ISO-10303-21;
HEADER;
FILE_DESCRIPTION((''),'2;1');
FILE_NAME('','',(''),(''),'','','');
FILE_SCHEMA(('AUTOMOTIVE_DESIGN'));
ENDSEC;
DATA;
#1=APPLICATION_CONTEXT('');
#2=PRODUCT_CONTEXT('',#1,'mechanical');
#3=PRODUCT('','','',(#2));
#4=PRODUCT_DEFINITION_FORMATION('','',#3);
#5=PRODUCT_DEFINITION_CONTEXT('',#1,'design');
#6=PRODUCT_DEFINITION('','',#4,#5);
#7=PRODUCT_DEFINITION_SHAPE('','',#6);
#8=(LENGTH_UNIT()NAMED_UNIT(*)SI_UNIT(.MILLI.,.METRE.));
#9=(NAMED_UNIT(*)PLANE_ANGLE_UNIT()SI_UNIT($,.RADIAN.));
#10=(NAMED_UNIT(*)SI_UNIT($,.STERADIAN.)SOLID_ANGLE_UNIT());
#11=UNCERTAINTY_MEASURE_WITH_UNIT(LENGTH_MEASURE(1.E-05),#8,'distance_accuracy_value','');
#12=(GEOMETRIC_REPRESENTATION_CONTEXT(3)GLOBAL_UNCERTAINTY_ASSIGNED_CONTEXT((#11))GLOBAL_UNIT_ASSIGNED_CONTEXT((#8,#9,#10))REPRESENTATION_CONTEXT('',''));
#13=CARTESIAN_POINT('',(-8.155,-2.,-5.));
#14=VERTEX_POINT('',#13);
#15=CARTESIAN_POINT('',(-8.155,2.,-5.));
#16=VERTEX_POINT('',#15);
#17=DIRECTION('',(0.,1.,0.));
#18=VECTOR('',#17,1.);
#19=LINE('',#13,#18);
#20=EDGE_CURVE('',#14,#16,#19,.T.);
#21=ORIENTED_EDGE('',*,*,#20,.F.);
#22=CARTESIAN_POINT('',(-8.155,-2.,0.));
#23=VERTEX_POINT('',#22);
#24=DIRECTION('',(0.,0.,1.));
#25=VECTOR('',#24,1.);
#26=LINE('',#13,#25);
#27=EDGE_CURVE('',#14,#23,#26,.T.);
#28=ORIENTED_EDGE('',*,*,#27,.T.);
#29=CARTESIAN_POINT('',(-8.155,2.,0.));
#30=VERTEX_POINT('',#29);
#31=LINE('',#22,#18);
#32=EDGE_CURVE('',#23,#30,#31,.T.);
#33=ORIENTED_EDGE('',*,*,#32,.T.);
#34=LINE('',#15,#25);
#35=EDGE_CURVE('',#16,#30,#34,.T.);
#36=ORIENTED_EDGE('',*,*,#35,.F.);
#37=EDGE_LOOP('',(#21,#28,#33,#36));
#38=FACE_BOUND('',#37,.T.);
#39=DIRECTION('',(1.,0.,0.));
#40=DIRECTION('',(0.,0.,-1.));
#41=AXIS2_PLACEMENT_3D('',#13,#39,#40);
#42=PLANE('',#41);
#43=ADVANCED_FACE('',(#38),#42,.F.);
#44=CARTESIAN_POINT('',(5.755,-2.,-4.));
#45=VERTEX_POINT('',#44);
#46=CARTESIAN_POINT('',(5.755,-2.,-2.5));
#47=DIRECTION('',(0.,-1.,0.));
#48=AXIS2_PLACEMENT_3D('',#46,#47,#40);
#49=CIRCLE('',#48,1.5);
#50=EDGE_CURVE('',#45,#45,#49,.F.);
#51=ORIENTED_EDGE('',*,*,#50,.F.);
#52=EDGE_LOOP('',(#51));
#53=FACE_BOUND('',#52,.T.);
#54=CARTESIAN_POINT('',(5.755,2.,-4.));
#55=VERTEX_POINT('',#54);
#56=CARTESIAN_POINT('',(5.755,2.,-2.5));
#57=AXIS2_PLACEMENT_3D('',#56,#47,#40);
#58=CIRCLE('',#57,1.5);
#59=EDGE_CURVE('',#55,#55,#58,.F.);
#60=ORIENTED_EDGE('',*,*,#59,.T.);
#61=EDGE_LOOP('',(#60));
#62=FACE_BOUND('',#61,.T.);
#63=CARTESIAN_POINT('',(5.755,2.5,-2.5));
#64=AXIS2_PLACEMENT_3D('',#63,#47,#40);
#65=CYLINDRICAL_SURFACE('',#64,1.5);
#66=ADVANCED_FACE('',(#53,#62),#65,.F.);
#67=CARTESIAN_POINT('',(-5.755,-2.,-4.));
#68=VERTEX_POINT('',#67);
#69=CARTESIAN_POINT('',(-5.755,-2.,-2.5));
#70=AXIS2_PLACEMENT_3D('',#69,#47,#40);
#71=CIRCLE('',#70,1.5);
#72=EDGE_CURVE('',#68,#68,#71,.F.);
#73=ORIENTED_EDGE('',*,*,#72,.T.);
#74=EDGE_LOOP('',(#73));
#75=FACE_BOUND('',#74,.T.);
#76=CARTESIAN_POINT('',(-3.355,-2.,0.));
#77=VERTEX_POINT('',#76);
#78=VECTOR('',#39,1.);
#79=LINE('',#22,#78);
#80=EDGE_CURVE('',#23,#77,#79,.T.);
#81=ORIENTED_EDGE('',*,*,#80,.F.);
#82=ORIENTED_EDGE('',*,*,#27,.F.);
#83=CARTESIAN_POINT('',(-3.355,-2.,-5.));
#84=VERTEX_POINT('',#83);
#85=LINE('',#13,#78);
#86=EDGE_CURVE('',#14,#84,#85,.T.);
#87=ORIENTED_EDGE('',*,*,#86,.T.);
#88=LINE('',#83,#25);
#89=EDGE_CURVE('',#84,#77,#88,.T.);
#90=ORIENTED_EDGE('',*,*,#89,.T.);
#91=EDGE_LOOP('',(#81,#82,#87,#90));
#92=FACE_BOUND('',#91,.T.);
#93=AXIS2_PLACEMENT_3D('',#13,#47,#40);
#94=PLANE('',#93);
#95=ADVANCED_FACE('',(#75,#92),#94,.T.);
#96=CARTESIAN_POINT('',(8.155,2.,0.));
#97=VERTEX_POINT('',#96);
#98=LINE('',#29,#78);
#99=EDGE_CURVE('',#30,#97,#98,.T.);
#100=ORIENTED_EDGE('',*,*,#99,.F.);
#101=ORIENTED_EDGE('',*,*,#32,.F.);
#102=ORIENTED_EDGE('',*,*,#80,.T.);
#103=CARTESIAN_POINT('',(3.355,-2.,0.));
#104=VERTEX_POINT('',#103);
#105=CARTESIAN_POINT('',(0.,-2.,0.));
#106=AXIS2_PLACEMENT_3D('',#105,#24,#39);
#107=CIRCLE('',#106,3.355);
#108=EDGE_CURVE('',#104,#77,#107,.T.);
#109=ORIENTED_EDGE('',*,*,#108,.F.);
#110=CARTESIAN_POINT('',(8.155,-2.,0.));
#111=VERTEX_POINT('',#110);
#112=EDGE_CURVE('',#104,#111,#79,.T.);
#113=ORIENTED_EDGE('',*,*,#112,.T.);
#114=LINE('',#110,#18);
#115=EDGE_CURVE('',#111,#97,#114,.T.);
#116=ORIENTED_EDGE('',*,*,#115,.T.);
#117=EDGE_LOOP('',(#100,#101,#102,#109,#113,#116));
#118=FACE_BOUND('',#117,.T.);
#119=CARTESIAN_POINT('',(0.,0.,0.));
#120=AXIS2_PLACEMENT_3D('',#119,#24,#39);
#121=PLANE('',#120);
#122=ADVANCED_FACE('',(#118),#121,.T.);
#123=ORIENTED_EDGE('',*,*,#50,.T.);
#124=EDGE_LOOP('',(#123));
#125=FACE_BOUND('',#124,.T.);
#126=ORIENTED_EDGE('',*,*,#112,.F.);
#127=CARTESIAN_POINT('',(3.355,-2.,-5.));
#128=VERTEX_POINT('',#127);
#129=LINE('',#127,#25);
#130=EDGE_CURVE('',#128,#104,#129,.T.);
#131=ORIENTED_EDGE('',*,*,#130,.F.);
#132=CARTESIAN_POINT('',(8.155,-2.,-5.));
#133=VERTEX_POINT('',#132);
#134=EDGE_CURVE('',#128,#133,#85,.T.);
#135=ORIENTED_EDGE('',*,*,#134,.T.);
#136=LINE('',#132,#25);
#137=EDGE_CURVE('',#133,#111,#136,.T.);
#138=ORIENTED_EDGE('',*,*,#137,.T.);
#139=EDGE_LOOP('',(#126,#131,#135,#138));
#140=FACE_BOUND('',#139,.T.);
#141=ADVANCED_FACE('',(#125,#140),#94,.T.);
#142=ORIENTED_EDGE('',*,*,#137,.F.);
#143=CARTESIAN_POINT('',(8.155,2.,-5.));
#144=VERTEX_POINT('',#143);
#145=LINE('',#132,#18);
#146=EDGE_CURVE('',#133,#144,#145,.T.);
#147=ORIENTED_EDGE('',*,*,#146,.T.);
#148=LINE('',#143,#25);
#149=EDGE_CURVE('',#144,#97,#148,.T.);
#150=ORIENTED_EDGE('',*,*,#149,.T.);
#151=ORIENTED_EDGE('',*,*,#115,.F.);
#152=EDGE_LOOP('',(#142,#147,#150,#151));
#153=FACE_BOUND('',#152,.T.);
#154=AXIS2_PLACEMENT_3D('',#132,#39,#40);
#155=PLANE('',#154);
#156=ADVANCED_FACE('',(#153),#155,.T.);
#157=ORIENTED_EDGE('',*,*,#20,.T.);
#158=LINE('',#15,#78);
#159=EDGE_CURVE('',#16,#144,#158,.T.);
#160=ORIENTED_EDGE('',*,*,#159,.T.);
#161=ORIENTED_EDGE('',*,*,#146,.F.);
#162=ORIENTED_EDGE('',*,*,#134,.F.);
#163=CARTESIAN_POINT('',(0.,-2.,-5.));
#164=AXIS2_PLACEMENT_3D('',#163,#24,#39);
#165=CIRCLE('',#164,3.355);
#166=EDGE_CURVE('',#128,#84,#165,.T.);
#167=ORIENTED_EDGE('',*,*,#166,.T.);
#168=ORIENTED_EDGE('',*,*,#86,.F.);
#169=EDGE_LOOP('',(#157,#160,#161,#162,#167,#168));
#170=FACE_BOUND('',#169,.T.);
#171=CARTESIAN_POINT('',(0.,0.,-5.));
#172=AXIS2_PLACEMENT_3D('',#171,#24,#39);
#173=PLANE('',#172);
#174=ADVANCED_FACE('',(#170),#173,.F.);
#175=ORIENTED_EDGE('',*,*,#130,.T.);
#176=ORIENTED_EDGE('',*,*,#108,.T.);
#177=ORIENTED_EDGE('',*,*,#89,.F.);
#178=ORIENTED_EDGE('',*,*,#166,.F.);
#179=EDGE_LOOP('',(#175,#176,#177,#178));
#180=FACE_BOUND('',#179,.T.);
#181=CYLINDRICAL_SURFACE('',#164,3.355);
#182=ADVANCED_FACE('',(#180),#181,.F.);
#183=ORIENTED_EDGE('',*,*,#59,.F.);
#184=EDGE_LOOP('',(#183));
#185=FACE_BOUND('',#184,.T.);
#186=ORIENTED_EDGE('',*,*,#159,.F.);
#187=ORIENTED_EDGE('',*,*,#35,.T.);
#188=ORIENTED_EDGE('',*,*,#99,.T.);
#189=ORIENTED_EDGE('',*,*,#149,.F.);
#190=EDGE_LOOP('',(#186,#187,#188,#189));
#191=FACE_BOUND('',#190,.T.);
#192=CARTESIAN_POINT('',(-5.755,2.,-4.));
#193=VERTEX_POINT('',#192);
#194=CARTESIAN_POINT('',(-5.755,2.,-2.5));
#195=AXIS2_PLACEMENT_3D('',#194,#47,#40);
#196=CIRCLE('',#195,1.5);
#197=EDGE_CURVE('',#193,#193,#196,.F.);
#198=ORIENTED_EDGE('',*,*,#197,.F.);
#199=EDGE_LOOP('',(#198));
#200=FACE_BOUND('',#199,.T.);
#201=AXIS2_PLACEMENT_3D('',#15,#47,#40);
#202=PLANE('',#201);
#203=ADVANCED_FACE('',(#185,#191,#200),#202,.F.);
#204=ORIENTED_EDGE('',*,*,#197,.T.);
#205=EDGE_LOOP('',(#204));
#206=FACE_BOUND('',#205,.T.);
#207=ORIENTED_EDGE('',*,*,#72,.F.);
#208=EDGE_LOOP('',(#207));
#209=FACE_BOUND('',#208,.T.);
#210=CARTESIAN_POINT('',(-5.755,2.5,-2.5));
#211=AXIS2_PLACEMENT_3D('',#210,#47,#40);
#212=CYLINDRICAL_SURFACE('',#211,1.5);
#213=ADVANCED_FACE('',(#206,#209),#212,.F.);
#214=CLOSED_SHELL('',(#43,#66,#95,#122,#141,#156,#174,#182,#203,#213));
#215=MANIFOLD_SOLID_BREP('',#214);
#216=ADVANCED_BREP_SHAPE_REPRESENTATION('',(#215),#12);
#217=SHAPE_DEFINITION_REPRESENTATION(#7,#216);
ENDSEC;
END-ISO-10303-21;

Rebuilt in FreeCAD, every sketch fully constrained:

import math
import FreeCAD as App
import Part
import Sketcher
Q = App.Units.Quantity

doc = App.newDocument("Part")
params = doc.addObject("Spreadsheet::Sheet", "Params")
for row, (alias, value) in enumerate([
    ("sketch1_height", "4 mm"),
    ("sketch1_width", "16.31 mm"),
    ("pad1_length", "5 mm"),
    ("pocket1_length", "5 mm"),
    ("sketch3_diameter", "3 mm"),
], start=1):
    params.set(f"A{row}", alias)
    params.set(f"B{row}", "=" + value)
    params.setAlias(f"B{row}", alias)

body = doc.addObject("PartDesign::Body", "Body")

# Sketch on XY plane
sketch1 = body.newObject("Sketcher::SketchObject", "Sketch")
sketch1.AttachmentSupport = (doc.getObject("XY_Plane"), [""])
sketch1.MapMode = "FlatFace"
sketch1.addGeometry(Part.LineSegment(App.Vector(-8.155, 2, 0), App.Vector(-8.155, -2, 0)), False)
sketch1.addGeometry(Part.LineSegment(App.Vector(-8.155, -2, 0), App.Vector(8.155, -2, 0)), False)
sketch1.addGeometry(Part.LineSegment(App.Vector(8.155, -2, 0), App.Vector(8.155, 2, 0)), False)
sketch1.addGeometry(Part.LineSegment(App.Vector(8.155, 2, 0), App.Vector(-8.155, 2, 0)), False)
sketch1.addConstraint(Sketcher.Constraint("Coincident", 0, 2, 1, 1))
sketch1.addConstraint(Sketcher.Constraint("Coincident", 1, 2, 2, 1))
sketch1.addConstraint(Sketcher.Constraint("Coincident", 2, 2, 3, 1))
sketch1.addConstraint(Sketcher.Constraint("Coincident", 3, 2, 0, 1))
sketch1.addConstraint(Sketcher.Constraint("Vertical", 0))
sketch1.addConstraint(Sketcher.Constraint("Horizontal", 1))
sketch1.addConstraint(Sketcher.Constraint("Vertical", 2))
sketch1.addConstraint(Sketcher.Constraint("Horizontal", 3))
sketch1.addConstraint(Sketcher.Constraint("Symmetric", 0, 2, 2, 2, -1, 1))
sketch1.addConstraint(Sketcher.Constraint("DistanceY", 0, 2, 0, 1, Q("4 mm")))
sketch1.addConstraint(Sketcher.Constraint("DistanceX", 1, 1, 1, 2, Q("16.31 mm")))
sketch1.setExpression("Constraints[9]", "Params.sketch1_height")
sketch1.setExpression("Constraints[10]", "Params.sketch1_width")
pad1 = body.newObject("PartDesign::Pad", "Pad")
pad1.Profile = sketch1
pad1.setExpression("Length", "Params.pad1_length")
pad1.Reversed = True

# Sketch on XY plane
sketch2 = body.newObject("Sketcher::SketchObject", "Sketch001")
sketch2.AttachmentSupport = (doc.getObject("XY_Plane"), [""])
sketch2.MapMode = "FlatFace"
sketch2.addGeometry(Part.LineSegment(App.Vector(-3.355, -2, 0), App.Vector(3.355, -2, 0)), False)
sketch2.addGeometry(Part.ArcOfCircle(Part.Circle(App.Vector(0, -2, 0), App.Vector(0, 0, 1), 3.355), math.radians(0), math.radians(180)), False)
sketch2.addConstraint(Sketcher.Constraint("Coincident", 0, 1, 1, 2))
sketch2.addConstraint(Sketcher.Constraint("Coincident", 1, 1, 0, 2))
sketch2.addConstraint(Sketcher.Constraint("Horizontal", 0))
sketch2.addConstraint(Sketcher.Constraint("PointOnObject", 1, 3, -2))
sketch2.addConstraint(Sketcher.Constraint("Horizontal", 1, 3, 0, 1))
sketch2.addConstraint(Sketcher.Constraint("DistanceY", 1, 3, -1, 1, Q("2 mm")))
sketch2.addConstraint(Sketcher.Constraint("Radius", 1, Q("3.355 mm")))
pocket1 = body.newObject("PartDesign::Pocket", "Pocket")
pocket1.Profile = sketch2
pocket1.setExpression("Length", "Params.pocket1_length")

# Sketch on XZ plane
sketch3 = body.newObject("Sketcher::SketchObject", "Sketch002")
sketch3.AttachmentSupport = (doc.getObject("XZ_Plane"), [""])
sketch3.MapMode = "FlatFace"
sketch3.addGeometry(Part.Circle(App.Vector(-5.755, -2.5, 0), App.Vector(0, 0, 1), 1.5), False)
sketch3.addGeometry(Part.Circle(App.Vector(5.755, -2.5, 0), App.Vector(0, 0, 1), 1.5), False)
sketch3.addConstraint(Sketcher.Constraint("Equal", 0, 1))
sketch3.addConstraint(Sketcher.Constraint("Symmetric", 0, 3, 1, 3, -2))
sketch3.addConstraint(Sketcher.Constraint("Diameter", 0, Q("3 mm")))
sketch3.addConstraint(Sketcher.Constraint("DistanceY", 0, 3, -1, 1, Q("2.5 mm")))
sketch3.addConstraint(Sketcher.Constraint("DistanceX", 0, 3, 1, 3, Q("11.51 mm")))
sketch3.setExpression("Constraints[2]", "Params.sketch3_diameter")
pocket2 = body.newObject("PartDesign::Pocket", "Pocket001")
pocket2.Profile = sketch3
pocket2.Type = "ThroughAll"
pocket2.Midplane = True

doc.recompute()
